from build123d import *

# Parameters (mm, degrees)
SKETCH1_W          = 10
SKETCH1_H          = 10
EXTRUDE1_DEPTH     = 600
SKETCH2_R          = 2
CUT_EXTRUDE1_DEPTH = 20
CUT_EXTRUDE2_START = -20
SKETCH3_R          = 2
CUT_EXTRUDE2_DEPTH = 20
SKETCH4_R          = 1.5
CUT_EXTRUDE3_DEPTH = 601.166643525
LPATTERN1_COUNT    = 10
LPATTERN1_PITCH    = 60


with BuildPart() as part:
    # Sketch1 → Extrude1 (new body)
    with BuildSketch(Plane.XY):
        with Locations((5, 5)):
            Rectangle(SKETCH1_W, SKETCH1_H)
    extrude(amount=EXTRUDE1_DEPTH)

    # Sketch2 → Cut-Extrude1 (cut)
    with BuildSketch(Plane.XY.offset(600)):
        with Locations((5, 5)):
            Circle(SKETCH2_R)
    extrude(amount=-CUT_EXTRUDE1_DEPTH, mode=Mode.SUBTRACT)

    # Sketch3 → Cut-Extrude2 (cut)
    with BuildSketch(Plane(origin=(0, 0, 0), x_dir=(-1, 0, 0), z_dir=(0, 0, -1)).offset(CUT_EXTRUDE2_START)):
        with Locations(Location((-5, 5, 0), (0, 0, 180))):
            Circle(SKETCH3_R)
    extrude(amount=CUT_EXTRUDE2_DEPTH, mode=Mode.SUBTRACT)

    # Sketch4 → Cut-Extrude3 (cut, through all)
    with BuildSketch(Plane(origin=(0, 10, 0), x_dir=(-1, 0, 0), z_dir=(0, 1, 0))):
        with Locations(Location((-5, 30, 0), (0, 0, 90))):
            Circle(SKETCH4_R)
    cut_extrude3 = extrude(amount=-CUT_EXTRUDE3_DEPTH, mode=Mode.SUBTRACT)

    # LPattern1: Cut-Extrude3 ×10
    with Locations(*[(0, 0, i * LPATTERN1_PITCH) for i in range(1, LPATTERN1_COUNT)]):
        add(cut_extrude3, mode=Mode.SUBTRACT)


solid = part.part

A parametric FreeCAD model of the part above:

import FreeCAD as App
import Part
import Sketcher
from FreeCAD import Vector
Q = App.Units.Quantity

doc = App.newDocument("Part")
body = doc.addObject("PartDesign::Body", "Body")

sketch1 = body.newObject("Sketcher::SketchObject", "Sketch")
sketch1.AttachmentSupport = (doc.getObject("XY_Plane"), [""])
sketch1.MapMode = "FlatFace"
sketch1.addGeometry(Part.LineSegment(Vector(0, 10, 0), Vector(0, 0, 0)), False)
sketch1.addGeometry(Part.LineSegment(Vector(0, 0, 0), Vector(10, 0, 0)), False)
sketch1.addGeometry(Part.LineSegment(Vector(10, 0, 0), Vector(10, 10, 0)), False)
sketch1.addGeometry(Part.LineSegment(Vector(10, 10, 0), Vector(0, 10, 0)), False)
sketch1.addConstraint(Sketcher.Constraint("Coincident", 0, 2, 1, 1))
sketch1.addConstraint(Sketcher.Constraint("Coincident", 1, 2, 2, 1))
sketch1.addConstraint(Sketcher.Constraint("Coincident", 2, 2, 3, 1))
sketch1.addConstraint(Sketcher.Constraint("Coincident", 3, 2, 0, 1))
sketch1.addConstraint(Sketcher.Constraint("Vertical", 0))
sketch1.addConstraint(Sketcher.Constraint("Horizontal", 1))
sketch1.addConstraint(Sketcher.Constraint("Vertical", 2))
sketch1.addConstraint(Sketcher.Constraint("Horizontal", 3))
sketch1.addConstraint(Sketcher.Constraint("Coincident", 0, 2, -1, 1))
sketch1.addConstraint(Sketcher.Constraint("Equal", 3, 0))
sketch1.addConstraint(Sketcher.Constraint("DistanceX", 1, 1, 1, 2, Q("10 mm")))
pad1 = body.newObject("PartDesign::Pad", "Pad")
pad1.Profile = sketch1
pad1.Length = 600

sketch2 = body.newObject("Sketcher::SketchObject", "Sketch001")
sketch2.AttachmentSupport = (doc.getObject("XY_Plane"), [""])
sketch2.MapMode = "FlatFace"
sketch2.AttachmentOffset = App.Placement(Vector(0, 0, 600), App.Rotation())
sketch2.addGeometry(Part.Circle(Vector(5, 5, 0), Vector(0, 0, 1), 2), False)
sketch2.addConstraint(Sketcher.Constraint("Diameter", 0, Q("4 mm")))
sketch2.addConstraint(Sketcher.Constraint("DistanceX", -1, 1, 0, 3, Q("5 mm")))
sketch2.addConstraint(Sketcher.Constraint("DistanceY", -1, 1, 0, 3, Q("5 mm")))
pocket1 = body.newObject("PartDesign::Pocket", "Pocket")
pocket1.Profile = sketch2
pocket1.Length = 20

sketch3 = body.newObject("Sketcher::SketchObject", "Sketch002")
sketch3.AttachmentSupport = (doc.getObject("XY_Plane"), [""])
sketch3.MapMode = "FlatFace"
sketch3.AttachmentOffset = App.Placement(Vector(0, 0, 20), App.Rotation())
sketch3.addGeometry(Part.Circle(Vector(5, 5, 0), Vector(0, 0, 1), 2), False)
sketch3.addConstraint(Sketcher.Constraint("Diameter", 0, Q("4 mm")))
sketch3.addConstraint(Sketcher.Constraint("DistanceX", -1, 1, 0, 3, Q("5 mm")))
sketch3.addConstraint(Sketcher.Constraint("DistanceY", -1, 1, 0, 3, Q("5 mm")))
pocket2 = body.newObject("PartDesign::Pocket", "Pocket001")
pocket2.Profile = sketch3
pocket2.Length = 20

sketch4 = body.newObject("Sketcher::SketchObject", "Sketch003")
sketch4.AttachmentSupport = (doc.getObject("XZ_Plane"), [""])
sketch4.MapMode = "FlatFace"
sketch4.AttachmentOffset = App.Placement(Vector(0, 0, -10), App.Rotation())
sketch4.addGeometry(Part.Circle(Vector(5, 30, 0), Vector(0, 0, 1), 1.5), False)
sketch4.addConstraint(Sketcher.Constraint("Diameter", 0, Q("3 mm")))
sketch4.addConstraint(Sketcher.Constraint("DistanceX", -1, 1, 0, 3, Q("5 mm")))
sketch4.addConstraint(Sketcher.Constraint("DistanceY", -1, 1, 0, 3, Q("30 mm")))
pocket3 = body.newObject("PartDesign::Pocket", "Pocket002")
pocket3.Profile = sketch4
pocket3.Type = "ThroughAll"
pocket3.Reversed = True
doc.recompute()

linearpattern = body.newObject("PartDesign::LinearPattern", "LinearPattern")
linearpattern.Originals = [pocket3]
linearpattern.Direction = (doc.getObject("Z_Axis"), [""])
linearpattern.Mode = "offset"
linearpattern.Offset = 60
linearpattern.Occurrences = 10
body.Tip = linearpattern

doc.recompute()
